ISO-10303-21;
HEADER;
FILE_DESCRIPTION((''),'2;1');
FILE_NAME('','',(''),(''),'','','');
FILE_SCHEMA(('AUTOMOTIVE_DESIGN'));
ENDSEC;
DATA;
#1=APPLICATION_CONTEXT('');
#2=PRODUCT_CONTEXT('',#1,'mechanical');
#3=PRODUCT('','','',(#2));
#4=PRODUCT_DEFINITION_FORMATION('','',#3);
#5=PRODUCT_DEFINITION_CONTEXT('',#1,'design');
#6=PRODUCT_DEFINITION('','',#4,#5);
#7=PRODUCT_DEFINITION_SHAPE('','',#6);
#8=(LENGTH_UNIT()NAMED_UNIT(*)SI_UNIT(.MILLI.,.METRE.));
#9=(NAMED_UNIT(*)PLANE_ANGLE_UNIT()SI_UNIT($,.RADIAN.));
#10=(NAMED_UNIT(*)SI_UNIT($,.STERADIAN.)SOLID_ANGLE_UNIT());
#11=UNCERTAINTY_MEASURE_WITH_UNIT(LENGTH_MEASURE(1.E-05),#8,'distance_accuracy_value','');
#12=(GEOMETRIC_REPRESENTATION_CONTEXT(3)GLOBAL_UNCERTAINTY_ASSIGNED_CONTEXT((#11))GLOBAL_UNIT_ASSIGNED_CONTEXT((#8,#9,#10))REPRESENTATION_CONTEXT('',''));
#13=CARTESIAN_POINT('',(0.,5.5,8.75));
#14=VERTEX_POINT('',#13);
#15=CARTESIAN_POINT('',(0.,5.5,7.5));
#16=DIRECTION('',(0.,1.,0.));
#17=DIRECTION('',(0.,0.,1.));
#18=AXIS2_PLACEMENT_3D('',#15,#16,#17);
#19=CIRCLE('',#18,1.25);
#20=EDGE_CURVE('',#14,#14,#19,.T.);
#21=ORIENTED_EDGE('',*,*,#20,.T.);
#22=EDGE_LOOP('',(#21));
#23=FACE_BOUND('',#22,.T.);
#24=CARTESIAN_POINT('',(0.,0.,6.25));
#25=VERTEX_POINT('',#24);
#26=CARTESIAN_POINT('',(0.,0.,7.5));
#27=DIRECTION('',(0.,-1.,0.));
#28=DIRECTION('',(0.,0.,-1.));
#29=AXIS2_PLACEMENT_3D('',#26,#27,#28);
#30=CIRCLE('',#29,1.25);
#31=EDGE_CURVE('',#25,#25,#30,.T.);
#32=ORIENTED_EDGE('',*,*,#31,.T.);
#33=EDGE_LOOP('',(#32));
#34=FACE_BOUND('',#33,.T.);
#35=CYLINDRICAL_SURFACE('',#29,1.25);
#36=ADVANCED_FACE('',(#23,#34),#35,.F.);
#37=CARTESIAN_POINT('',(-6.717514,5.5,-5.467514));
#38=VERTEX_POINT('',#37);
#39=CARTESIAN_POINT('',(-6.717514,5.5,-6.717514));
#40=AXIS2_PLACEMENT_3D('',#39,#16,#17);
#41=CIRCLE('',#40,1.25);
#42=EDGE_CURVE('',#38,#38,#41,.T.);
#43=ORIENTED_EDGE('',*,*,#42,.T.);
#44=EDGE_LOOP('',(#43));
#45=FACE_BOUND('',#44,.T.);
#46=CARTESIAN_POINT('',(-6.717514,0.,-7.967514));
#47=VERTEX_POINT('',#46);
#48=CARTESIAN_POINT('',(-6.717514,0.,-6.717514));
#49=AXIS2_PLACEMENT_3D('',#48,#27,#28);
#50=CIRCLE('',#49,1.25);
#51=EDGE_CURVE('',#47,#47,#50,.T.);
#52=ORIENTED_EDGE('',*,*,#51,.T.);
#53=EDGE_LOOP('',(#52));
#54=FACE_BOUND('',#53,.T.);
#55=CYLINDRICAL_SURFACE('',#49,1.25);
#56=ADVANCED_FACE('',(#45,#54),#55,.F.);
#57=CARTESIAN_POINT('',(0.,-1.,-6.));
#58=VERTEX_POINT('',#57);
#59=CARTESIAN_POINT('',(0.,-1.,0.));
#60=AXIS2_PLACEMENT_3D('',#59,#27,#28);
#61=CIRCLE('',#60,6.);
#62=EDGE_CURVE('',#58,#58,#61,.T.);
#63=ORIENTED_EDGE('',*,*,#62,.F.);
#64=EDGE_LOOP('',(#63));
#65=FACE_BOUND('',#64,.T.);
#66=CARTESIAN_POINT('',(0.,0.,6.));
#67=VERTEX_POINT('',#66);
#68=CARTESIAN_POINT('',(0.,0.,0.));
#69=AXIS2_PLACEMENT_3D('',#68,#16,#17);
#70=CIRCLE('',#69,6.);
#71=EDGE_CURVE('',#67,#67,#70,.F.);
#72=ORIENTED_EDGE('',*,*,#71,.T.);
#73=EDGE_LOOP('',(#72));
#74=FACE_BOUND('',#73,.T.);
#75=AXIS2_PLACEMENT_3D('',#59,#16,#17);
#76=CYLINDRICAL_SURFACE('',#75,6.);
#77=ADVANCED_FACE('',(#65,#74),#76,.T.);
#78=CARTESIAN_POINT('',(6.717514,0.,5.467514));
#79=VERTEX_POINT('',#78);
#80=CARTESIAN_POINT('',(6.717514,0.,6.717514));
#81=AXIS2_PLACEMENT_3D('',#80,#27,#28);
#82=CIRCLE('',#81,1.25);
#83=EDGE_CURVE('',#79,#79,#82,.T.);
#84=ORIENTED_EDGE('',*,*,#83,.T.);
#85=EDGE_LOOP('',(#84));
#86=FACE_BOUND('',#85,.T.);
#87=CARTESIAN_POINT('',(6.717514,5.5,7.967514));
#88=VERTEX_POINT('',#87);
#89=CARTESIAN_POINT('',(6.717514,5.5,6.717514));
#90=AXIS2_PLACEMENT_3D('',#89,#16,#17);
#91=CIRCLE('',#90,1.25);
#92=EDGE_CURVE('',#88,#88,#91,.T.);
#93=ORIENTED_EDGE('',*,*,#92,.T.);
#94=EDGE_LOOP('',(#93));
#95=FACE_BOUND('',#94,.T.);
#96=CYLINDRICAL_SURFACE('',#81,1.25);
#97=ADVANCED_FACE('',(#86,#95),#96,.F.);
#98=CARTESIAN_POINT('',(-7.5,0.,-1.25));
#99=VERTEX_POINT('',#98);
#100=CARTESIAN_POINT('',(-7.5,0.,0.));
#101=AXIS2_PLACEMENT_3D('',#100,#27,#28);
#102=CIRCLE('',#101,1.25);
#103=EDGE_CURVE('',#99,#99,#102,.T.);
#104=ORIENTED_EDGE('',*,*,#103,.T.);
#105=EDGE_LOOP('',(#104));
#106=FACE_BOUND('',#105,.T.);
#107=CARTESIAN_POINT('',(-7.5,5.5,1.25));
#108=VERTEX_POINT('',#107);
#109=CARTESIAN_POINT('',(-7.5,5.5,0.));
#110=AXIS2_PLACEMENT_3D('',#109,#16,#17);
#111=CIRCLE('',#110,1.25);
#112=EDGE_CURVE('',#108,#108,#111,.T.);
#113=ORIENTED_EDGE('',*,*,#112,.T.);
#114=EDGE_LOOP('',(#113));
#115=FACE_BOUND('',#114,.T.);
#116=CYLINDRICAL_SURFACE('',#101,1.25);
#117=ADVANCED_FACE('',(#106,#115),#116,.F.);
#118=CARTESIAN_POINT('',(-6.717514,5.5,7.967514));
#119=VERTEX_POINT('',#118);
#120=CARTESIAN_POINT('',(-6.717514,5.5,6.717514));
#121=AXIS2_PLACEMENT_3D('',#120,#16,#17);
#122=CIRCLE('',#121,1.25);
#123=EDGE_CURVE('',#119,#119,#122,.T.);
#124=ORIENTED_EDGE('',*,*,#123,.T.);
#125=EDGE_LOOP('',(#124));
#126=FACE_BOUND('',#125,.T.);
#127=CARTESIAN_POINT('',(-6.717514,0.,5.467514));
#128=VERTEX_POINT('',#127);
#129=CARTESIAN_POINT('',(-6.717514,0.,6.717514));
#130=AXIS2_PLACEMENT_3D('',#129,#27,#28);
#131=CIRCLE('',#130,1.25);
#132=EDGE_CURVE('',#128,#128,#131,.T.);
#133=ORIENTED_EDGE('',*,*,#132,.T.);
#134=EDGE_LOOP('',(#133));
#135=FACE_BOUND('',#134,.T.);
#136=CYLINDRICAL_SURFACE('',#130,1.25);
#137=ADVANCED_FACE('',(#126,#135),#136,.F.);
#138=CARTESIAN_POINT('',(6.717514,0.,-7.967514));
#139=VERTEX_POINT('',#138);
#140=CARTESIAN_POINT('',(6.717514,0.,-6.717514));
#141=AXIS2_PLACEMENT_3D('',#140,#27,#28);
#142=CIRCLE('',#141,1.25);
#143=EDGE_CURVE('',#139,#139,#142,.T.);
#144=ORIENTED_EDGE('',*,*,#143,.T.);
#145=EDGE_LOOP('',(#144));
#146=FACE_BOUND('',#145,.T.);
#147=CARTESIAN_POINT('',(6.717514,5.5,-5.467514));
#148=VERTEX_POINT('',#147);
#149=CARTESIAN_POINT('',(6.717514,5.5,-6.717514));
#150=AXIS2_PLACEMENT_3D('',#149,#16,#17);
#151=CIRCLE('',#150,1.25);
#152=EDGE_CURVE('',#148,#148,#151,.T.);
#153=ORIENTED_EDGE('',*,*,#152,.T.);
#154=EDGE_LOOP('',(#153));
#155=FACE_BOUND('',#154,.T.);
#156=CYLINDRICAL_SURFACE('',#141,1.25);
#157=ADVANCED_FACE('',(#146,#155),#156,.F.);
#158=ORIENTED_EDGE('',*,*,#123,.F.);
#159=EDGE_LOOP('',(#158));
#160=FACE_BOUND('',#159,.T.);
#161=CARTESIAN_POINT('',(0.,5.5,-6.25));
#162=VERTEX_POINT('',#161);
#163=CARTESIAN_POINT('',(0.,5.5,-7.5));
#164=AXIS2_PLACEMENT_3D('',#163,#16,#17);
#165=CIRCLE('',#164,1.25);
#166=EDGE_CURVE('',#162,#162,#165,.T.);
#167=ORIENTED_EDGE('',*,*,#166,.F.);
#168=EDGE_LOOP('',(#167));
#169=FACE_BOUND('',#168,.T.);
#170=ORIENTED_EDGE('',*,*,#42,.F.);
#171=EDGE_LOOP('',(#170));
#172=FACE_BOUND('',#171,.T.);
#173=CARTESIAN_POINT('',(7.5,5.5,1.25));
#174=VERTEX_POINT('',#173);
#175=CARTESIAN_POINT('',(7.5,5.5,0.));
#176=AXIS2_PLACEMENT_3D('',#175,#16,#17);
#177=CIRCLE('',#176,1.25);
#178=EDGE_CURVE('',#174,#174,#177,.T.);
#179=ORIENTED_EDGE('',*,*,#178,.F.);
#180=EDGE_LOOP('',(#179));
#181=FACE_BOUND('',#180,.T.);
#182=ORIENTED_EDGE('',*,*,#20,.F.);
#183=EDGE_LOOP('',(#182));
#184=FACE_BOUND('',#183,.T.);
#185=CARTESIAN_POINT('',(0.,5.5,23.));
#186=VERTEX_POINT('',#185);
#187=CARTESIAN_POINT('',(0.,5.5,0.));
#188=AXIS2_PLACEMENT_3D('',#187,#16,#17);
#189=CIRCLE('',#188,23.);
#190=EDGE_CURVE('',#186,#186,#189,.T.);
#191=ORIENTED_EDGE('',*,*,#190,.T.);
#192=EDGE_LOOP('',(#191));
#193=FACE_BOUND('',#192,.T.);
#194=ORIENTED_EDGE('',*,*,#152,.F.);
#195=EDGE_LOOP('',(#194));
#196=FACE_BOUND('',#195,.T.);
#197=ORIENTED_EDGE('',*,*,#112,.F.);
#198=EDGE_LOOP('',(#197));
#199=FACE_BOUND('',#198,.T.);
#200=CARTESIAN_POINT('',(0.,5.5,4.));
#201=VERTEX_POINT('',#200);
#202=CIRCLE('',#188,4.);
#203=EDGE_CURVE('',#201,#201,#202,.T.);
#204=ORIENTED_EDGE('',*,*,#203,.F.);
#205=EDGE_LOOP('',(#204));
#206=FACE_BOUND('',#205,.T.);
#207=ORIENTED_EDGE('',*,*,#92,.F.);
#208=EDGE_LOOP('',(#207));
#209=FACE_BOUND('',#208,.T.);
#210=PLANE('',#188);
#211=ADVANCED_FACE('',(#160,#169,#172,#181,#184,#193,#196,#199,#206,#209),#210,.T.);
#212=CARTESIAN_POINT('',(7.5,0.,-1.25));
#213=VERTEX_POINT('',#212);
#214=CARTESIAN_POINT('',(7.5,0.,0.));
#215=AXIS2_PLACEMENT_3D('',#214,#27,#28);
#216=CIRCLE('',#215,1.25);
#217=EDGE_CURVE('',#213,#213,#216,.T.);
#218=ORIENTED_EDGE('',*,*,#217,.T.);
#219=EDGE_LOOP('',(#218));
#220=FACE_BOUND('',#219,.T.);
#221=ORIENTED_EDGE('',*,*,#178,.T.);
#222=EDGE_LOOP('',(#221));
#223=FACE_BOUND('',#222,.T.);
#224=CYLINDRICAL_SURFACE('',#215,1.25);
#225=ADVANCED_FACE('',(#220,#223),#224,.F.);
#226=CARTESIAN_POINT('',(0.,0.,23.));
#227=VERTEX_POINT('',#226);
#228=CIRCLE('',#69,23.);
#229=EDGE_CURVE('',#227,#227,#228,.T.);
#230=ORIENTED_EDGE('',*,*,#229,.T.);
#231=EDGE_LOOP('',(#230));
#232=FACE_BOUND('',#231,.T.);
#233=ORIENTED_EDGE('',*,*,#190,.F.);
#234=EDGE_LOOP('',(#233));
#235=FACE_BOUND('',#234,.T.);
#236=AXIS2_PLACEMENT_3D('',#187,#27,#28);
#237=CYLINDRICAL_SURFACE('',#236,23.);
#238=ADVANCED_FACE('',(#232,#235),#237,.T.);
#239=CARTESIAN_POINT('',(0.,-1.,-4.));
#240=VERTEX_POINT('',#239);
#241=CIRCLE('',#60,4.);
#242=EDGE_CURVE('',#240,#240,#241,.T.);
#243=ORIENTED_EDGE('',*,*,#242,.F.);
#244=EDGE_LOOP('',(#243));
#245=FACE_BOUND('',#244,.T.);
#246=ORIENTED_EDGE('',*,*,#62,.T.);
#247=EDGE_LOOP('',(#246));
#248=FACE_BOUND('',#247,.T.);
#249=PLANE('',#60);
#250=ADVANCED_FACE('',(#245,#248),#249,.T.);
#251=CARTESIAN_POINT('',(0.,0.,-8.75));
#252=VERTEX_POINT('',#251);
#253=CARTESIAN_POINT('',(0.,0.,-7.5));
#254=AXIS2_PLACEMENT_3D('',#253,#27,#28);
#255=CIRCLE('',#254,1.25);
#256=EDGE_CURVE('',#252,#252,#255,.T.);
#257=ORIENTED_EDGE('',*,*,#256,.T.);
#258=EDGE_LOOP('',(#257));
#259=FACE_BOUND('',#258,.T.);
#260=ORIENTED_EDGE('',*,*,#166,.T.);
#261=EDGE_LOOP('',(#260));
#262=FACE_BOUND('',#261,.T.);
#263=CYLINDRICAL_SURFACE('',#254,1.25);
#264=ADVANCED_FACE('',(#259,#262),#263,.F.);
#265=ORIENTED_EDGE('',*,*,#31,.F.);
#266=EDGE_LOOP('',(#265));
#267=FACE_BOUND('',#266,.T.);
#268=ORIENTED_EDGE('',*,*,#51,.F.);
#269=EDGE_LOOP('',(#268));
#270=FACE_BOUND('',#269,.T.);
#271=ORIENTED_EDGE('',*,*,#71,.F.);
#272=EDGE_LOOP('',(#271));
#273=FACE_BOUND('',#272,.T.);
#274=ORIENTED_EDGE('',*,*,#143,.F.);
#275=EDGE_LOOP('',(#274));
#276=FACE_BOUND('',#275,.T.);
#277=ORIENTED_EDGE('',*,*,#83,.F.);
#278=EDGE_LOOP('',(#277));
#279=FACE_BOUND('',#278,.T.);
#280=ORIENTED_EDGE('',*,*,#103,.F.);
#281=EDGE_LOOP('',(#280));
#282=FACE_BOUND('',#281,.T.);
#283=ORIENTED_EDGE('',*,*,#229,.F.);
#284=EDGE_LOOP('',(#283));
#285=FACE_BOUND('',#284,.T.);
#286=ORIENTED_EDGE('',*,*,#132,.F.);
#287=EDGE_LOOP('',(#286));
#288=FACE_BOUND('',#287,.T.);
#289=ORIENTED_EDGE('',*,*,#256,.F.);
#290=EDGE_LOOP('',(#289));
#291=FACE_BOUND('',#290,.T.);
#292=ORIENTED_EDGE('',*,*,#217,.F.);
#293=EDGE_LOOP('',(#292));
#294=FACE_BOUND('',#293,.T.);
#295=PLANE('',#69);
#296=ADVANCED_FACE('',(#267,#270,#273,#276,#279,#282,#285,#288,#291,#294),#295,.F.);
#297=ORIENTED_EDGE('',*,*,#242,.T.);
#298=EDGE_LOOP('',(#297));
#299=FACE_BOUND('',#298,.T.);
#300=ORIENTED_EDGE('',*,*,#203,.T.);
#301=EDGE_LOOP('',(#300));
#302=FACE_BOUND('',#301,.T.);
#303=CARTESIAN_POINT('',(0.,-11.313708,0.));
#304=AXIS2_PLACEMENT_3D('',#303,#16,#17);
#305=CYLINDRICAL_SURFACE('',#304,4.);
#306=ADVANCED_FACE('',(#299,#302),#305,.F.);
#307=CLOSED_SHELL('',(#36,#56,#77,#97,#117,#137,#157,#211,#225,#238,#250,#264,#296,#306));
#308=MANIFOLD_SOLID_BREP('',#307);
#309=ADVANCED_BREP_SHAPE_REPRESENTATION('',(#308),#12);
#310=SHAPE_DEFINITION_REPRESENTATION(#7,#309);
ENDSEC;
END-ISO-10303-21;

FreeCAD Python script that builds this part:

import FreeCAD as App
import Part
import Sketcher

V = App.Vector

doc = App.newDocument("Part")
body = doc.addObject("PartDesign::Body", "Body")

# Sketch on XZ plane
sketch1 = doc.addObject("Sketcher::SketchObject", "Sketch")
body.addObject(sketch1)
sketch1.AttachmentSupport = (doc.XZ_Plane, [""])
sketch1.MapMode = "FlatFace"
sketch1.addGeometry(Part.Circle(V(0, 0, 0), V(0, 0, 1), 23), False)
sketch1.addConstraint([
    Sketcher.Constraint("Coincident", 0, 3, -1, 1),
    Sketcher.Constraint("Diameter", 0, 46.0),
])
pad1 = doc.addObject("PartDesign::Pad", "Pad")
body.addObject(pad1)
pad1.Profile = sketch1
pad1.Length = 5.5
pad1.Reversed = True

# Sketch on XZ plane
sketch2 = doc.addObject("Sketcher::SketchObject", "Sketch001")
body.addObject(sketch2)
sketch2.AttachmentSupport = (doc.XZ_Plane, [""])
sketch2.MapMode = "FlatFace"
sketch2.AttachmentOffset = App.Placement(V(0, 0, -5.5), App.Rotation())
sketch2.addGeometry(Part.Circle(V(0, 0, 0), V(0, 0, 1), 4), False)
sketch2.addConstraint([
    Sketcher.Constraint("Coincident", 0, 3, -1, 1),
    Sketcher.Constraint("Diameter", 0, 8.0),
])
pocket1 = doc.addObject("PartDesign::Pocket", "Pocket")
body.addObject(pocket1)
pocket1.Profile = sketch2
pocket1.Length = 5.5
pocket1.Reversed = True

# Sketch on XZ plane
sketch3 = doc.addObject("Sketcher::SketchObject", "Sketch002")
body.addObject(sketch3)
sketch3.AttachmentSupport = (doc.XZ_Plane, [""])
sketch3.MapMode = "FlatFace"
sketch3.addGeometry([
    Part.Circle(V(-6.7, 6.7, 0), V(0, 0, 1), 1.2),  # 0
    Part.Circle(V(7.5, 0, 0), V(0, 0, 1), 1.2),  # 1
    Part.Circle(V(0, -7.5, 0), V(0, 0, 1), 1.2),  # 2
    Part.Circle(V(-7.5, 0, 0), V(0, 0, 1), 1.2),  # 3
    Part.Circle(V(0, 7.5, 0), V(0, 0, 1), 1.2),  # 4
    Part.Circle(V(6.7, 6.7, 0), V(0, 0, 1), 1.2),  # 5
    Part.Circle(V(6.7, -6.7, 0), V(0, 0, 1), 1.2),  # 6
    Part.Circle(V(-6.7, -6.7, 0), V(0, 0, 1), 1.2),  # 7
], False)
sketch3.addConstraint([
    Sketcher.Constraint("Equal", 0, 1),
    Sketcher.Constraint("Equal", 1, 2),
    Sketcher.Constraint("Equal", 2, 3),
    Sketcher.Constraint("Equal", 3, 4),
    Sketcher.Constraint("Equal", 4, 5),
    Sketcher.Constraint("Equal", 5, 6),
    Sketcher.Constraint("Equal", 6, 7),
    Sketcher.Constraint("Symmetric", 1, 3, 3, 3, -1, 1),
    Sketcher.Constraint("Symmetric", 2, 3, 4, 3, -1, 1),
    Sketcher.Constraint("Symmetric", 0, 3, 6, 3, -1, 1),
    Sketcher.Constraint("Symmetric", 5, 3, 7, 3, -1, 1),
    Sketcher.Constraint("Symmetric", 0, 3, 5, 3, -2),
    Sketcher.Constraint("PointOnObject", 1, 3, -1),
    Sketcher.Constraint("PointOnObject", 2, 3, -2),
    Sketcher.Constraint("Diameter", 0, 2.5),
    Sketcher.Constraint("DistanceX", 3, 3, 1, 3, 15.0),
    Sketcher.Constraint("DistanceY", 2, 3, 4, 3, 15.0),
    Sketcher.Constraint("DistanceX", 0, 3, 5, 3, 13.435029),
    Sketcher.Constraint("DistanceY", 6, 3, 5, 3, 13.435029),
])
doc.recompute()
hole = doc.addObject("PartDesign::Hole", "Hole")
body.addObject(hole)
hole.Profile = sketch3
hole.ThreadType = "None"
hole.Diameter = 2.5
hole.DepthType = "Dimension"
hole.Depth = 6.5
hole.DrillPoint = "Angled"
hole.DrillPointAngle = 118

# Sketch on XZ plane
sketch4 = doc.addObject("Sketcher::SketchObject", "Sketch003")
body.addObject(sketch4)
sketch4.AttachmentSupport = (doc.XZ_Plane, [""])
sketch4.MapMode = "FlatFace"
sketch4.addGeometry([
    Part.Circle(V(0, 0, 0), V(0, 0, 1), 6),
    Part.Circle(V(0, 0, 0), V(0, 0, 1), 4),
], False)
sketch4.addConstraint([
    Sketcher.Constraint("Coincident", 0, 3, -1, 1),
    Sketcher.Constraint("Coincident", 1, 3, -1, 1),
    Sketcher.Constraint("Diameter", 0, 12.0),
    Sketcher.Constraint("Diameter", 1, 8.0),
])
pad2 = doc.addObject("PartDesign::Pad", "Pad001")
body.addObject(pad2)
pad2.Profile = sketch4
pad2.Length = 1

doc.recompute()
